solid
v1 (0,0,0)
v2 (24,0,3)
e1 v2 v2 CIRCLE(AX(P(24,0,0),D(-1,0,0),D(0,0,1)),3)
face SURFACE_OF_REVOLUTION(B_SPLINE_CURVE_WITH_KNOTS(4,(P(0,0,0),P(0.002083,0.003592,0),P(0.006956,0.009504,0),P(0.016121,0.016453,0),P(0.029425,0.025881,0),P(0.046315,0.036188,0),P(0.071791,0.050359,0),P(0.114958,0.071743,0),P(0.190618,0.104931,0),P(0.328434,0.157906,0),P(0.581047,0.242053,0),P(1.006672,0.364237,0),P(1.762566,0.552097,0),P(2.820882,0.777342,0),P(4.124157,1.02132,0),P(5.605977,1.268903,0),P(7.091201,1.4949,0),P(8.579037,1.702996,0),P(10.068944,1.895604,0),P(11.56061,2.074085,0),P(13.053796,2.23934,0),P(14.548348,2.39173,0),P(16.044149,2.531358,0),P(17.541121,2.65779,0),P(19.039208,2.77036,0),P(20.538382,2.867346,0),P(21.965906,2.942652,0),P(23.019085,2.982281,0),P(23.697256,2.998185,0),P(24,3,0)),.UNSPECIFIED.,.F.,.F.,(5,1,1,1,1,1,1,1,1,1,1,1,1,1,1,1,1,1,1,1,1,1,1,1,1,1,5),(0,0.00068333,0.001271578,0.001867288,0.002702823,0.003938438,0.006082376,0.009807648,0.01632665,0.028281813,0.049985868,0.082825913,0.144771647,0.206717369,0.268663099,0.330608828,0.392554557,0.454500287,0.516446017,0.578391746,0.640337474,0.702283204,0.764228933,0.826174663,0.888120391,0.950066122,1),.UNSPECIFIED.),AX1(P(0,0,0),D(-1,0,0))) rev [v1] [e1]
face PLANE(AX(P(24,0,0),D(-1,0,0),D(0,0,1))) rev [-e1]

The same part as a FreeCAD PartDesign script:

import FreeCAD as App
import Part
import Sketcher
from FreeCAD import Vector

doc = App.newDocument("Part")
params = doc.addObject("Spreadsheet::Sheet", "Params")
for row, (alias, value) in enumerate([
    ("revolution_angle", "360 deg"),
], start=1):
    params.set(f"A{row}", alias)
    params.set(f"B{row}", "=" + value)
    params.setAlias(f"B{row}", alias)

body = doc.addObject("PartDesign::Body", "Body")

# Sketch on XY plane
sketch1 = body.newObject("Sketcher::SketchObject", "Sketch")
sketch1.AttachmentSupport = (doc.getObject("XY_Plane"), [""])
sketch1.MapMode = "FlatFace"
sketch1.addGeometry(Part.LineSegment(Vector(0, 0, 0), Vector(24, 0, 0)), False)
sketch1.addGeometry(Part.LineSegment(Vector(24, 0, 0), Vector(24, 3, 0)), False)
sketch1.addGeometry(Part.BSplineCurve([Vector(0, 0, 0), Vector(0.002083, 0.003592, 0), Vector(0.006956, 0.009504, 0), Vector(0.016121, 0.016453, 0), Vector(0.029425, 0.025881, 0), Vector(0.046315, 0.036188, 0), Vector(0.071791, 0.050359, 0), Vector(0.114958, 0.071743, 0), Vector(0.190618, 0.104931, 0), Vector(0.328434, 0.157906, 0), Vector(0.581047, 0.242053, 0), Vector(1.006672, 0.364237, 0), Vector(1.762566, 0.552097, 0), Vector(2.820882, 0.777342, 0), Vector(4.124157, 1.02132, 0), Vector(5.605977, 1.268903, 0), Vector(7.091201, 1.4949, 0), Vector(8.579037, 1.702996, 0), Vector(10.068944, 1.895604, 0), Vector(11.56061, 2.074085, 0), Vector(13.053796, 2.23934, 0), Vector(14.548348, 2.39173, 0), Vector(16.044149, 2.531358, 0), Vector(17.541121, 2.65779, 0), Vector(19.039208, 2.77036, 0), Vector(20.538382, 2.867346, 0), Vector(21.965906, 2.942652, 0), Vector(23.019085, 2.982281, 0), Vector(23.697256, 2.998185, 0), Vector(24, 3, 0)], [5, 1, 1, 1, 1, 1, 1, 1, 1, 1, 1, 1, 1, 1, 1, 1, 1, 1, 1, 1, 1, 1, 1, 1, 1, 1, 5], [0, 0.00068333, 0.001271578, 0.001867288, 0.002702823, 0.003938438, 0.006082376, 0.009807648, 0.01632665, 0.028281813, 0.049985868, 0.082825913, 0.144771647, 0.206717369, 0.268663099, 0.330608828, 0.392554557, 0.454500287, 0.516446017, 0.578391746, 0.640337474, 0.702283204, 0.764228933, 0.826174663, 0.888120391, 0.950066122, 1], False, 4, [1, 1, 1, 1, 1, 1, 1, 1, 1, 1, 1, 1, 1, 1, 1, 1, 1, 1, 1, 1, 1, 1, 1, 1, 1, 1, 1, 1, 1, 1], False), False)
sketch1.addConstraint(Sketcher.Constraint("Block", 2))
sketch1.addConstraint(Sketcher.Constraint("Coincident", 0, 2, 1, 1))
sketch1.addConstraint(Sketcher.Constraint("Coincident", 1, 2, 2, 2))
sketch1.addConstraint(Sketcher.Constraint("Coincident", 2, 1, 0, 1))
sketch1.addConstraint(Sketcher.Constraint("Horizontal", 0))
sketch1.addConstraint(Sketcher.Constraint("Vertical", 1))
revolution = body.newObject("PartDesign::Revolution", "Revolution")
revolution.Profile = sketch1
revolution.ReferenceAxis = (sketch1, ["H_Axis"])
revolution.setExpression("Angle", "Params.revolution_angle")

doc.recompute()
